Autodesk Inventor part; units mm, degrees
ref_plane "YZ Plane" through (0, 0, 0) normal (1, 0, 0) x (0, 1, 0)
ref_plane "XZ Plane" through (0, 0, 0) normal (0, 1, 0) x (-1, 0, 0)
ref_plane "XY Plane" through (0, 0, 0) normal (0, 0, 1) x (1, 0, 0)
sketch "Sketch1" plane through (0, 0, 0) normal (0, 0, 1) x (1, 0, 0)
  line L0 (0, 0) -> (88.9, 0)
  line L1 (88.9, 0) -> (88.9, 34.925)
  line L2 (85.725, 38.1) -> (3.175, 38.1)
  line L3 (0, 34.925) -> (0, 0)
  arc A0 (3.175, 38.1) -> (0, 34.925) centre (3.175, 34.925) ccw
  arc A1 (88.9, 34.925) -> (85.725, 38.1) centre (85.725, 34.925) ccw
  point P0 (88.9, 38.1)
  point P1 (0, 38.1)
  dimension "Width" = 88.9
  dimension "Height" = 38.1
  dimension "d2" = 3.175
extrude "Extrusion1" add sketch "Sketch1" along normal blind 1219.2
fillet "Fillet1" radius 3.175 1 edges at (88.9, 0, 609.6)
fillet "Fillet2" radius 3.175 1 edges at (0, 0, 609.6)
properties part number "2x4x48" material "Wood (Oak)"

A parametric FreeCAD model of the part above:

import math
import FreeCAD as App
import Part
import Sketcher
from FreeCAD import Vector
Q = App.Units.Quantity


def edges_at(feature, points):
    """Names of the edges that pass closest to the given points."""
    edges = feature.Shape.Edges
    near = lambda p: min(range(len(edges)), key=lambda i: edges[i].distToShape(Part.Vertex(*p))[0])
    return sorted({f"Edge{near(p) + 1}" for p in points})

doc = App.newDocument("Part")
body = doc.addObject("PartDesign::Body", "Body")

# Sketch on XY plane
sketch1 = body.newObject("Sketcher::SketchObject", "Sketch")
sketch1.AttachmentSupport = (doc.getObject("XY_Plane"), [""])
sketch1.MapMode = "FlatFace"
sketch1.addGeometry([
    Part.LineSegment(Vector(0, 34.925, 0), Vector(0, 0, 0)),  # 0
    Part.LineSegment(Vector(0, 0, 0), Vector(88.9, 0, 0)),  # 1
    Part.LineSegment(Vector(88.9, 0, 0), Vector(88.9, 34.925, 0)),  # 2
    Part.ArcOfCircle(Part.Circle(Vector(85.725, 34.925, 0), Vector(0, 0, 1), 3.175), math.radians(0), math.radians(90)),  # 3
    Part.LineSegment(Vector(85.725, 38.1, 0), Vector(3.175, 38.1, 0)),  # 4
    Part.ArcOfCircle(Part.Circle(Vector(3.175, 34.925, 0), Vector(0, 0, 1), 3.175), math.radians(90), math.radians(180)),  # 5
], False)
sketch1.addConstraint([
    Sketcher.Constraint("Coincident", 0, 2, 1, 1),
    Sketcher.Constraint("Coincident", 1, 2, 2, 1),
    Sketcher.Constraint("Tangent", 2, 2, 3, 1),
    Sketcher.Constraint("Tangent", 3, 2, 4, 1),
    Sketcher.Constraint("Tangent", 4, 2, 5, 1),
    Sketcher.Constraint("Tangent", 5, 2, 0, 1),
    Sketcher.Constraint("Vertical", 0),
    Sketcher.Constraint("Horizontal", 1),
    Sketcher.Constraint("Vertical", 2),
    Sketcher.Constraint("Horizontal", 4),
    Sketcher.Constraint("Coincident", 0, 2, -1, 1),
    Sketcher.Constraint("Equal", 3, 5),
    Sketcher.Constraint("DistanceX", 1, 1, 1, 2, Q("3.5 in")),
    Sketcher.Constraint("Radius", 3, Q("0.125 in")),
    Sketcher.Constraint("DistanceY", -1, 1, 3, 2, Q("1.5 in")),
])
pad1 = body.newObject("PartDesign::Pad", "Pad")
pad1.Profile = sketch1
pad1.Length = Q("48 in")
doc.recompute()

fillet = body.newObject("PartDesign::Fillet", "Fillet")
fillet.Base = (pad1, edges_at(pad1, [(88.9, 0, 609.6)]))
fillet.Radius = Q("0.125 in")
doc.recompute()

fillet2 = body.newObject("PartDesign::Fillet", "Fillet001")
fillet2.Base = (fillet, edges_at(fillet, [(0, 0, 609.6)]))
fillet2.Radius = Q("0.125 in")

doc.recompute()
